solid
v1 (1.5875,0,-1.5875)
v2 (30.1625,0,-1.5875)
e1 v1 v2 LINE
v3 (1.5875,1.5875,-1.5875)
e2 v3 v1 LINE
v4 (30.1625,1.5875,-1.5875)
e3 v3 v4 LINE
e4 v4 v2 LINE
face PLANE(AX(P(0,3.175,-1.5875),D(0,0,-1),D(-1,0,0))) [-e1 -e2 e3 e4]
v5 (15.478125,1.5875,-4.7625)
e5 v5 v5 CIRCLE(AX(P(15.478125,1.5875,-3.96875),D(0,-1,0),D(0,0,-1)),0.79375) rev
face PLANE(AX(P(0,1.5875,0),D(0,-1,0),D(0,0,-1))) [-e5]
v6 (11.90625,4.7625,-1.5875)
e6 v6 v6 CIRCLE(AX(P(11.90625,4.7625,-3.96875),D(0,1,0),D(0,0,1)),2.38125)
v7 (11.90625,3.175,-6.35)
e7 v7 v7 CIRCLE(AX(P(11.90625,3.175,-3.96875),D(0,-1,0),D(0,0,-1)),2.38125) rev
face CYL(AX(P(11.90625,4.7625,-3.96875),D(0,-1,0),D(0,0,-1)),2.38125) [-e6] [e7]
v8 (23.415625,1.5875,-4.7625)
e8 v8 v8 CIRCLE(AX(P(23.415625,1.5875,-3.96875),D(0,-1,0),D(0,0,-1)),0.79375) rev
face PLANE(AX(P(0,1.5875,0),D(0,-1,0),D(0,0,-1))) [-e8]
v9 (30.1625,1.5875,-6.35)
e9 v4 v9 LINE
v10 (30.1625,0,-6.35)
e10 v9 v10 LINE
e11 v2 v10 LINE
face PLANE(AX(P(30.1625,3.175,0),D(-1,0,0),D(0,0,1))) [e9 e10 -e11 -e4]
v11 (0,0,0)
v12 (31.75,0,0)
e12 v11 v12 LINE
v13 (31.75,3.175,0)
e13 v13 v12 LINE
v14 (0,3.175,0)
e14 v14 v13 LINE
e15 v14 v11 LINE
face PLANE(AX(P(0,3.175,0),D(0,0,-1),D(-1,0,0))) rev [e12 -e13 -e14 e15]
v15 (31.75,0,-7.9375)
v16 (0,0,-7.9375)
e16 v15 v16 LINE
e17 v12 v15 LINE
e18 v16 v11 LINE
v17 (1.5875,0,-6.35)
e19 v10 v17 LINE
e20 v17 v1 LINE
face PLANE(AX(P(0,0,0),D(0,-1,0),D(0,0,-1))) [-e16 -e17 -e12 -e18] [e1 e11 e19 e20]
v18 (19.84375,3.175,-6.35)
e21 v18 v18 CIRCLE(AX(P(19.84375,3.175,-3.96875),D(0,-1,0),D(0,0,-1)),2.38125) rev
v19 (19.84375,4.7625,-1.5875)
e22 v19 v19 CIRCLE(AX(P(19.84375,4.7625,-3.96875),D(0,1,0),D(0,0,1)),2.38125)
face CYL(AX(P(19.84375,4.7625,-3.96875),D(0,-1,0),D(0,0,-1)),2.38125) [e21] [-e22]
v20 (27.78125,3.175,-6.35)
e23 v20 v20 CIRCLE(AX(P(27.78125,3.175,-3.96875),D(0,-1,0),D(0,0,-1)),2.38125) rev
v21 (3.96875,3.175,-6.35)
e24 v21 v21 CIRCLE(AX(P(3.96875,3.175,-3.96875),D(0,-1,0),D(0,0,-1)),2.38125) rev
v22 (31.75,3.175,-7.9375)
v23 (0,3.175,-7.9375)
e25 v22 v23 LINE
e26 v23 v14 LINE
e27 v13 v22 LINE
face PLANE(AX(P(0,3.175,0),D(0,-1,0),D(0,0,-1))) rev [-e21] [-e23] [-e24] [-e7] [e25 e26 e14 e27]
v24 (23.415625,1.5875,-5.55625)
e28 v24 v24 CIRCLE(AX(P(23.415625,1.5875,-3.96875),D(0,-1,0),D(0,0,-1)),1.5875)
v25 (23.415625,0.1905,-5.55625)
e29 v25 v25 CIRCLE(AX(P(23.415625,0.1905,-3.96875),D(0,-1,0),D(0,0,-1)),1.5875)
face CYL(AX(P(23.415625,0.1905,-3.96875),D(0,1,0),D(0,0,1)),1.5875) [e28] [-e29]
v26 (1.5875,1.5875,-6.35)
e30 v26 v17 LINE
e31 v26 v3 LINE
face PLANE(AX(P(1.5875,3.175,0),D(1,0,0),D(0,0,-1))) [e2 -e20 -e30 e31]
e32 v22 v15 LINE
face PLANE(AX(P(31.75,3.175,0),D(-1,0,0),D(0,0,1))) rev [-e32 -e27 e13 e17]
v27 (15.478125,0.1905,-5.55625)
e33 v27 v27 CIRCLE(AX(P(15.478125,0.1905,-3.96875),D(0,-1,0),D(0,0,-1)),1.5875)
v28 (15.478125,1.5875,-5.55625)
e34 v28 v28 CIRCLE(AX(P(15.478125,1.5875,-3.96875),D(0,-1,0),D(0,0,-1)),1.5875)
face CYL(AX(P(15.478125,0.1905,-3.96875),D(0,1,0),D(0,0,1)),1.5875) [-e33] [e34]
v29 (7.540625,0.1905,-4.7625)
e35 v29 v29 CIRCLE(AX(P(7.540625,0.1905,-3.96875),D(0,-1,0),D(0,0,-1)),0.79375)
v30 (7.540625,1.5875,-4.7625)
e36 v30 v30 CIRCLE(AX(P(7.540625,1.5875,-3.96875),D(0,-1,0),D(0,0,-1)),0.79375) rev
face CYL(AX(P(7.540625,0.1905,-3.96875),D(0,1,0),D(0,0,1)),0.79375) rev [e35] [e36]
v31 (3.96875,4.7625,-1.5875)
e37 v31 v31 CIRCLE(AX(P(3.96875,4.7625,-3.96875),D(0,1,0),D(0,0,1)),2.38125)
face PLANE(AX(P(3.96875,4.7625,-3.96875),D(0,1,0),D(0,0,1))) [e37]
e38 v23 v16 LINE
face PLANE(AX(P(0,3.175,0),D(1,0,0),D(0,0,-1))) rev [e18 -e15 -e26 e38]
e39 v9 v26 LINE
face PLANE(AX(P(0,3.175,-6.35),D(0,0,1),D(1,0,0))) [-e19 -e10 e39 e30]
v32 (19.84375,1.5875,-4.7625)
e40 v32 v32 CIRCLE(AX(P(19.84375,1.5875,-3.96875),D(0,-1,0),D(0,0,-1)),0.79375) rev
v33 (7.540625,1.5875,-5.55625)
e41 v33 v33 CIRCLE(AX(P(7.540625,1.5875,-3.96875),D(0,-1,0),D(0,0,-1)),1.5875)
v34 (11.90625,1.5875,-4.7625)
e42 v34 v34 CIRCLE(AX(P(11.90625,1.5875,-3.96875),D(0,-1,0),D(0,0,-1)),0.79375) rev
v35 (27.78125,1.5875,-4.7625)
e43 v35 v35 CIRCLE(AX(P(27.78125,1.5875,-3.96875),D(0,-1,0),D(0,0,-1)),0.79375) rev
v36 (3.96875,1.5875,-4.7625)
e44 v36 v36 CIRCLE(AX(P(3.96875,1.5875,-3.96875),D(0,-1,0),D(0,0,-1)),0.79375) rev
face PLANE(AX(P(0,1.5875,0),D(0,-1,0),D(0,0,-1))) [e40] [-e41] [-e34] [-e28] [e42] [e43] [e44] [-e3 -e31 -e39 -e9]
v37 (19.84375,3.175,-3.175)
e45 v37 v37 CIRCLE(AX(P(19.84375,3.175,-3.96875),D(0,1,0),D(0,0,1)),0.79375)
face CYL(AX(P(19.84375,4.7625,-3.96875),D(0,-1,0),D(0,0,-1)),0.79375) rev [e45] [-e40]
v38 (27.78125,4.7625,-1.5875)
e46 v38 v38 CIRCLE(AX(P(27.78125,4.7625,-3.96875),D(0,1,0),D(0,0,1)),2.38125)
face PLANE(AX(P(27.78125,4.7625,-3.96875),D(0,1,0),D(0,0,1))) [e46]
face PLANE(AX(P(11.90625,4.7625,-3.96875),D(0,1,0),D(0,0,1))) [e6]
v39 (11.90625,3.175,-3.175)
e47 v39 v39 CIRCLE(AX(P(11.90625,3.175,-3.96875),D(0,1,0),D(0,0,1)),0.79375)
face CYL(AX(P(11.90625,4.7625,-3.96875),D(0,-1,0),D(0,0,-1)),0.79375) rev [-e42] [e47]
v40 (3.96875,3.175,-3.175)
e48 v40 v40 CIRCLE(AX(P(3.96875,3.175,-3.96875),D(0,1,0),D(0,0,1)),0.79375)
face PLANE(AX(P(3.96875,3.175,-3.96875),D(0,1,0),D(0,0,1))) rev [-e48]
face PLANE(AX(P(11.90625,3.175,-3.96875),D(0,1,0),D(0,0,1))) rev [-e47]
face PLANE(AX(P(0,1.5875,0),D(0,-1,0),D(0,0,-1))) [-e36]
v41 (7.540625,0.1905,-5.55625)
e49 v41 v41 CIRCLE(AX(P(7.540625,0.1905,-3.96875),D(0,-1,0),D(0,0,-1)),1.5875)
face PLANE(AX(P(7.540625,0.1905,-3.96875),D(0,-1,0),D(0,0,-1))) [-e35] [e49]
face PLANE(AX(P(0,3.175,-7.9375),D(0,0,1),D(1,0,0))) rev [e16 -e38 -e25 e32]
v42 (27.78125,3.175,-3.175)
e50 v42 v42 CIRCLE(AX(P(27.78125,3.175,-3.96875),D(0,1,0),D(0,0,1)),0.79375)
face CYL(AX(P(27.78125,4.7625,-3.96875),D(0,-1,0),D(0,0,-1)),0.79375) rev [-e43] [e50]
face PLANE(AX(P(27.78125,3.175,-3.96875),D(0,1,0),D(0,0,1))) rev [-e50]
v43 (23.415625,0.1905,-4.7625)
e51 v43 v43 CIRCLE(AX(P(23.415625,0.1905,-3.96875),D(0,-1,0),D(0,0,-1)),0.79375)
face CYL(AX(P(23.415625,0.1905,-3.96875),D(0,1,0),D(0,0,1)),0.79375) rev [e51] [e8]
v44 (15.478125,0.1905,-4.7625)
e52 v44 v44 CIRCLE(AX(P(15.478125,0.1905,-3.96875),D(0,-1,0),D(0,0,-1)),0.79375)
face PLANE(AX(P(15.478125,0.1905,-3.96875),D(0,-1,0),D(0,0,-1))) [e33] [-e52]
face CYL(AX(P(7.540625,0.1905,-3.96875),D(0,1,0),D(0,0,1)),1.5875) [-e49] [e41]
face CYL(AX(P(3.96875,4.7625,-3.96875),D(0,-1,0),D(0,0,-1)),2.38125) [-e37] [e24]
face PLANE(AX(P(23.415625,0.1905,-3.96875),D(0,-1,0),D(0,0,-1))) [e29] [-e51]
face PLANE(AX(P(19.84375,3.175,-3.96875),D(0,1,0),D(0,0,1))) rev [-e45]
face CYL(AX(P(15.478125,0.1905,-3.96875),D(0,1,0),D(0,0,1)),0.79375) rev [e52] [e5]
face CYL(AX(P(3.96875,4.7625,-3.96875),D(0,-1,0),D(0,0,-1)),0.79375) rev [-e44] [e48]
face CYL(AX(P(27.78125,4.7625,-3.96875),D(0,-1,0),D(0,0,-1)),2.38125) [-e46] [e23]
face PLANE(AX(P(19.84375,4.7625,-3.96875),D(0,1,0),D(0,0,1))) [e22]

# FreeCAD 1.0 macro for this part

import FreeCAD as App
import Part
import Sketcher
from FreeCAD import Vector
Q = App.Units.Quantity


def faces_at(feature, points):
    """Names of the faces that lie closest to the given points."""
    faces = feature.Shape.Faces
    near = lambda p: min(range(len(faces)), key=lambda i: faces[i].distToShape(Part.Vertex(*p))[0])
    return sorted({f"Face{near(p) + 1}" for p in points})


def add_polygon(sketch, points):
    """Adds a closed chain of lines whose ends are joined by coincident constraints."""
    first, n = sketch.GeometryCount, len(points)
    for a, b in zip(points, points[1:] + points[:1]):
        sketch.addGeometry(Part.LineSegment(App.Vector(*a, 0), App.Vector(*b, 0)), False)
    for i in range(n):
        sketch.addConstraint(Sketcher.Constraint("Coincident", first + i, 2, first + (i + 1) % n, 1))

doc = App.newDocument("Part")
body = doc.addObject("PartDesign::Body", "Body")

sketch1 = doc.addObject("Sketcher::SketchObject", "Sketch")
body.addObject(sketch1)
sketch1.AttachmentSupport = (doc.XZ_Plane, [""])
sketch1.MapMode = "FlatFace"
add_polygon(sketch1, [(0, -8), (0, 0), (32, 0), (32, -8)])
sketch1.addConstraint(Sketcher.Constraint("Vertical", 0))
sketch1.addConstraint(Sketcher.Constraint("Horizontal", 1))
sketch1.addConstraint(Sketcher.Constraint("Vertical", 2))
sketch1.addConstraint(Sketcher.Constraint("Horizontal", 3))
sketch1.addConstraint(Sketcher.Constraint("Coincident", 0, 2, -1, 1))
sketch1.addConstraint(Sketcher.Constraint("DistanceX", 1, 1, 1, 2, Q("1.25 in")))
sketch1.addConstraint(Sketcher.Constraint("DistanceY", 0, 1, 0, 2, Q("0.3125 in")))
pad1 = doc.addObject("PartDesign::Pad", "Pad")
body.addObject(pad1)
pad1.Profile = sketch1
pad1.Length = Q("0.125 in")
pad1.Reversed = True

sketch2 = doc.addObject("Sketcher::SketchObject", "Sketch001")
body.addObject(sketch2)
sketch2.AttachmentSupport = (doc.XZ_Plane, [""])
sketch2.MapMode = "FlatFace"
sketch2.AttachmentOffset = App.Placement(Vector(0, 0, -0.125 * 25.4), App.Rotation())
sketch2.addGeometry(Part.Circle(Vector(4, -4, 0), Vector(0, 0, 1), 2.4), False)
sketch2.addGeometry(Part.Circle(Vector(11.9, -4, 0), Vector(0, 0, 1), 2.4), False)
sketch2.addGeometry(Part.Circle(Vector(19.8, -4, 0), Vector(0, 0, 1), 2.4), False)
sketch2.addGeometry(Part.Circle(Vector(27.8, -4, 0), Vector(0, 0, 1), 2.4), False)
sketch2.addConstraint(Sketcher.Constraint("Equal", 0, 1))
sketch2.addConstraint(Sketcher.Constraint("Equal", 1, 2))
sketch2.addConstraint(Sketcher.Constraint("Equal", 2, 3))
sketch2.addConstraint(Sketcher.Constraint("Horizontal", 0, 3, 1, 3))
sketch2.addConstraint(Sketcher.Constraint("Horizontal", 1, 3, 2, 3))
sketch2.addConstraint(Sketcher.Constraint("Horizontal", 2, 3, 3, 3))
sketch2.addConstraint(Sketcher.Constraint("Diameter", 0, Q("0.1875 in")))
sketch2.addConstraint(Sketcher.Constraint("DistanceX", -1, 1, 0, 3, Q("0.15625 in")))
sketch2.addConstraint(Sketcher.Constraint("DistanceY", 0, 3, -1, 1, Q("0.15625 in")))
sketch2.addConstraint(Sketcher.Constraint("DistanceX", -1, 1, 1, 3, Q("0.46875 in")))
sketch2.addConstraint(Sketcher.Constraint("DistanceX", -1, 1, 2, 3, Q("0.78125 in")))
sketch2.addConstraint(Sketcher.Constraint("DistanceX", -1, 1, 3, 3, Q("1.09375 in")))
pad2 = doc.addObject("PartDesign::Pad", "Pad001")
body.addObject(pad2)
pad2.Profile = sketch2
pad2.Length = Q("0.0625 in")
pad2.Reversed = True
doc.recompute()

thickness = doc.addObject("PartDesign::Thickness", "Thickness")
body.addObject(thickness)
thickness.Base = (pad2, faces_at(pad2, [(15.875, 0, -3.969)]))
thickness.Value = Q("0.0625 in")
thickness.Reversed = True
thickness.Join = "Intersection"

sketch3 = doc.addObject("Sketcher::SketchObject", "Sketch002")
body.addObject(sketch3)
sketch3.AttachmentSupport = (doc.XZ_Plane, [""])
sketch3.MapMode = "FlatFace"
sketch3.AttachmentOffset = App.Placement(Vector(0, 0, -0.0625 * 25.4), App.Rotation())
sketch3.addGeometry(Part.Circle(Vector(7.5, -4, 0), Vector(0, 0, 1), 1.6), False)
sketch3.addGeometry(Part.Circle(Vector(7.5, -4, 0), Vector(0, 0, 1), 0.8), False)
sketch3.addGeometry(Part.Circle(Vector(15.5, -4, 0), Vector(0, 0, 1), 1.6), False)
sketch3.addGeometry(Part.Circle(Vector(15.5, -4, 0), Vector(0, 0, 1), 0.8), False)
sketch3.addGeometry(Part.Circle(Vector(23.4, -4, 0), Vector(0, 0, 1), 1.6), False)
sketch3.addGeometry(Part.Circle(Vector(23.4, -4, 0), Vector(0, 0, 1), 0.8), False)
sketch3.addConstraint(Sketcher.Constraint("Coincident", 1, 3, 0, 3))
sketch3.addConstraint(Sketcher.Constraint("Coincident", 3, 3, 2, 3))
sketch3.addConstraint(Sketcher.Constraint("Coincident", 5, 3, 4, 3))
sketch3.addConstraint(Sketcher.Constraint("Equal", 0, 2))
sketch3.addConstraint(Sketcher.Constraint("Equal", 1, 3))
sketch3.addConstraint(Sketcher.Constraint("Equal", 2, 4))
sketch3.addConstraint(Sketcher.Constraint("Equal", 3, 5))
sketch3.addConstraint(Sketcher.Constraint("Horizontal", 1, 3, 2, 3))
sketch3.addConstraint(Sketcher.Constraint("Horizontal", 3, 3, 4, 3))
sketch3.addConstraint(Sketcher.Constraint("Diameter", 0, Q("0.125 in")))
sketch3.addConstraint(Sketcher.Constraint("Diameter", 1, Q("0.0625 in")))
sketch3.addConstraint(Sketcher.Constraint("DistanceX", -1, 1, 0, 3, Q("0.296875 in")))
sketch3.addConstraint(Sketcher.Constraint("DistanceY", 0, 3, -1, 1, Q("0.15625 in")))
sketch3.addConstraint(Sketcher.Constraint("DistanceX", -1, 1, 2, 3, Q("0.609375 in")))
sketch3.addConstraint(Sketcher.Constraint("DistanceX", -1, 1, 4, 3, Q("0.921875 in")))
pad3 = doc.addObject("PartDesign::Pad", "Pad002")
body.addObject(pad3)
pad3.Profile = sketch3
pad3.Length = Q("0.055 in")

doc.recompute()
